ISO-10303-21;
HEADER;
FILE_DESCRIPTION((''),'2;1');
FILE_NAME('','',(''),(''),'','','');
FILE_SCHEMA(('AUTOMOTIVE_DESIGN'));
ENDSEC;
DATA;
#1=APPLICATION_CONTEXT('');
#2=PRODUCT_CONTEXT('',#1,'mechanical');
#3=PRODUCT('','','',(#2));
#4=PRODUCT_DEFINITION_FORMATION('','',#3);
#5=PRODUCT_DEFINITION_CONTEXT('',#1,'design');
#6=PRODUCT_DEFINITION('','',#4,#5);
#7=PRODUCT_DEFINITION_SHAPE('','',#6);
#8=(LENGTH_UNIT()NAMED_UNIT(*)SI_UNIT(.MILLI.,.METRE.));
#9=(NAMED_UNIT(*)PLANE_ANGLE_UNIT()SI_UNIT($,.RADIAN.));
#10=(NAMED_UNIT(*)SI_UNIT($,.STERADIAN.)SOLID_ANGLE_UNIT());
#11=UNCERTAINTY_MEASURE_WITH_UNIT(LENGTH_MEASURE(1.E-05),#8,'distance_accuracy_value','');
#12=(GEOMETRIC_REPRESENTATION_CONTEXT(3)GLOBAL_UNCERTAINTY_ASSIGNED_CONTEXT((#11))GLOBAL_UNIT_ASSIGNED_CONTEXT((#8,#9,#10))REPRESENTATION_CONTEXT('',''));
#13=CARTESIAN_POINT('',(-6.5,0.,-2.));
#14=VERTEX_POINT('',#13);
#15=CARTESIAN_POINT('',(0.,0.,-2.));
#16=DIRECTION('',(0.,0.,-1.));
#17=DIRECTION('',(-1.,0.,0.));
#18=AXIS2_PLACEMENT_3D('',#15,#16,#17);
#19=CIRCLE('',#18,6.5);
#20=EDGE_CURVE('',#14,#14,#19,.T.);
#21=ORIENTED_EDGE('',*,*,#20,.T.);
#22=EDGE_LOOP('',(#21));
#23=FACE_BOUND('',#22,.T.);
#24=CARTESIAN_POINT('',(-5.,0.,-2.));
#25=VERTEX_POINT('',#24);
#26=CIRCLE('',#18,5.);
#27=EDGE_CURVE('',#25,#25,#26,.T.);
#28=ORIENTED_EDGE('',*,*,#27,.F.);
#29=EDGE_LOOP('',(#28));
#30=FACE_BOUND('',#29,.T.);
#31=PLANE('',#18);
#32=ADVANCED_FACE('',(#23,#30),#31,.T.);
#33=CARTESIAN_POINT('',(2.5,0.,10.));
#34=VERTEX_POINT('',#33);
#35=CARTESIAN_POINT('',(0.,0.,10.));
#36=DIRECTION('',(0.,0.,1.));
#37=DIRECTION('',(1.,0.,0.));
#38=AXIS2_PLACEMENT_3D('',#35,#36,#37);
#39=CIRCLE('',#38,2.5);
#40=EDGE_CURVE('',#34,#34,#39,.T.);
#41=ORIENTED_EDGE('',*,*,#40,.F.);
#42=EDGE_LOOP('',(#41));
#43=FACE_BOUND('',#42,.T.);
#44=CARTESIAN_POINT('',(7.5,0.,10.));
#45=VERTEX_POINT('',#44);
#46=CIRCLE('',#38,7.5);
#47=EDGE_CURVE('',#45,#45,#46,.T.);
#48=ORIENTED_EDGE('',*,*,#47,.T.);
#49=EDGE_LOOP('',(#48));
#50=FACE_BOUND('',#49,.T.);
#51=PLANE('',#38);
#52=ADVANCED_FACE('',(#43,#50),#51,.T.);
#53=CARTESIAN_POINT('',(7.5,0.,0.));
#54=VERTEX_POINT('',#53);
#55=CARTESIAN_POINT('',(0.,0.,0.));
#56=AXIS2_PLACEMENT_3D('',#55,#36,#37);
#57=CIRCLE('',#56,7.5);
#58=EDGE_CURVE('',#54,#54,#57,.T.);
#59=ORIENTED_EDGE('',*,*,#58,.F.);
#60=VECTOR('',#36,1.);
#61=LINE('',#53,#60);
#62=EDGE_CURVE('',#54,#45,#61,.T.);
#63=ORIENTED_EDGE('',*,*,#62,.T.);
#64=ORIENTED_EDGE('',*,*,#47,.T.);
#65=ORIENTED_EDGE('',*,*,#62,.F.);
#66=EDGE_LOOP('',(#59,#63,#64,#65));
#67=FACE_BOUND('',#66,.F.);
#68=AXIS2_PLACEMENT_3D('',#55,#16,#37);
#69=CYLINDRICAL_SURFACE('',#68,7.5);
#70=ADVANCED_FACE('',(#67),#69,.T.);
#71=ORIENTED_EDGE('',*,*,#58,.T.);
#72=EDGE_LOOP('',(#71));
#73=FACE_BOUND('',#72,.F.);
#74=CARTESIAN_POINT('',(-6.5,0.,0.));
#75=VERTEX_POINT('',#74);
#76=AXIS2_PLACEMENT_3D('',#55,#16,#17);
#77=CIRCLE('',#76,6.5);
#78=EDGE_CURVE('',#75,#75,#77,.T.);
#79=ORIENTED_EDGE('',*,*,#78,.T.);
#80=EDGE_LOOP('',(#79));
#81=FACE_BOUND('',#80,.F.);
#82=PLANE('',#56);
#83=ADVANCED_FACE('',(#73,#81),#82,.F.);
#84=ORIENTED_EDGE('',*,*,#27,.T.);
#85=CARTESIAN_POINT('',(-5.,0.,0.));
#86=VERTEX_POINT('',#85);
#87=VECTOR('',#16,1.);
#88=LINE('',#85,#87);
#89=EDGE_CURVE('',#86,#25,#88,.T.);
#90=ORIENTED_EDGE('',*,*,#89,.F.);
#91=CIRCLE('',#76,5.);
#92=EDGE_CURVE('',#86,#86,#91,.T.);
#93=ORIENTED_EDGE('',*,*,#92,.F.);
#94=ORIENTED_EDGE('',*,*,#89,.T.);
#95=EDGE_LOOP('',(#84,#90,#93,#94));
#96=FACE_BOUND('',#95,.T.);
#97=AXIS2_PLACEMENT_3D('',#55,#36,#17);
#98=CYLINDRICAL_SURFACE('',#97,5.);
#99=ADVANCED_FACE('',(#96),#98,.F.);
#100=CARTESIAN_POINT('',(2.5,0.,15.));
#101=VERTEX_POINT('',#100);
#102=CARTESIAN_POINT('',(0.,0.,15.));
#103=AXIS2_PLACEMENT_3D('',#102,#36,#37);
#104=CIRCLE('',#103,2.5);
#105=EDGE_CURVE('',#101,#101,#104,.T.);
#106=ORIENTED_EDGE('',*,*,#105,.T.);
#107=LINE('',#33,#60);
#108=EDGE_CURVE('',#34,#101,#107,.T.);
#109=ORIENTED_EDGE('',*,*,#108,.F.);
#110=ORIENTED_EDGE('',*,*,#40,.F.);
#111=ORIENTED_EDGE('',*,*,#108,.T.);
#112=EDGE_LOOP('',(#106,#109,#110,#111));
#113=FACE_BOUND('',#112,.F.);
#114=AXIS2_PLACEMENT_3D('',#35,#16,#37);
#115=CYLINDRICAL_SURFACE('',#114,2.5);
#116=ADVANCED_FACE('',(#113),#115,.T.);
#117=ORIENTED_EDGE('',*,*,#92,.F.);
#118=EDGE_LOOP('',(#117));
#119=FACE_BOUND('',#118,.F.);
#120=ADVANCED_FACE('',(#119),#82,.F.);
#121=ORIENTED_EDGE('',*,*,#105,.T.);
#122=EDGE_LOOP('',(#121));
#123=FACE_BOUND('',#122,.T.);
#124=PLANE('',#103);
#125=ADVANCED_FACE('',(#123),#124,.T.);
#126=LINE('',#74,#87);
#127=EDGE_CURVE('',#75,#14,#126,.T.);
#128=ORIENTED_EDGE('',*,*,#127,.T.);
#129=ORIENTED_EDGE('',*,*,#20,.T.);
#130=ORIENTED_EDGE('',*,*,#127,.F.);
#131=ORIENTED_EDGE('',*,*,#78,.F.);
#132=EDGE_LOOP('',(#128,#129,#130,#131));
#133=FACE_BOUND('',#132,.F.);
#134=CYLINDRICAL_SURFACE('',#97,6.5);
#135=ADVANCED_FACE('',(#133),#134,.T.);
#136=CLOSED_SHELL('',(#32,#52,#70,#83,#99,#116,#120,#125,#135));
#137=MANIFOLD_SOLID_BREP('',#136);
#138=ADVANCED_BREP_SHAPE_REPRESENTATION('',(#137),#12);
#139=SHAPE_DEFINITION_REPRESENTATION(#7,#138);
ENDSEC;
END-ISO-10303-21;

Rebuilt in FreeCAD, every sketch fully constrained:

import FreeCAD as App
import Part
import Sketcher
Q = App.Units.Quantity

doc = App.newDocument("Part")
body = doc.addObject("PartDesign::Body", "Body")

sketch1 = doc.addObject("Sketcher::SketchObject", "Sketch")
body.addObject(sketch1)
sketch1.AttachmentSupport = (doc.XY_Plane, [""])
sketch1.MapMode = "FlatFace"
sketch1.addGeometry(Part.Circle(App.Vector(0, 0, 0), App.Vector(0, 0, 1), 8), False)
sketch1.addConstraint([
    Sketcher.Constraint("Coincident", 0, 3, -1, 1),
    Sketcher.Constraint("Diameter", 0, Q("15 mm")),
])
pad1 = doc.addObject("PartDesign::Pad", "Pad")
body.addObject(pad1)
pad1.Profile = sketch1
pad1.Length = 10

sketch2 = doc.addObject("Sketcher::SketchObject", "Sketch001")
body.addObject(sketch2)
sketch2.AttachmentSupport = (doc.XY_Plane, [""])
sketch2.MapMode = "FlatFace"
sketch2.addGeometry([
    Part.Circle(App.Vector(0, 0, 0), App.Vector(0, 0, 1), 6),
    Part.Circle(App.Vector(0, 0, 0), App.Vector(0, 0, 1), 5),
], False)
sketch2.addConstraint([
    Sketcher.Constraint("Coincident", 0, 3, -1, 1),
    Sketcher.Constraint("Coincident", 1, 3, -1, 1),
    Sketcher.Constraint("Diameter", 0, Q("13 mm")),
    Sketcher.Constraint("Diameter", 1, Q("10 mm")),
])
pad2 = doc.addObject("PartDesign::Pad", "Pad001")
body.addObject(pad2)
pad2.Profile = sketch2
pad2.Length = 2
pad2.Reversed = True

sketch3 = doc.addObject("Sketcher::SketchObject", "Sketch002")
body.addObject(sketch3)
sketch3.AttachmentSupport = (doc.XY_Plane, [""])
sketch3.MapMode = "FlatFace"
sketch3.AttachmentOffset = App.Placement(App.Vector(0, 0, 10), App.Rotation())
sketch3.addGeometry(Part.Circle(App.Vector(0, 0, 0), App.Vector(0, 0, 1), 2.5), False)
sketch3.addConstraint([
    Sketcher.Constraint("Coincident", 0, 3, -1, 1),
    Sketcher.Constraint("Diameter", 0, Q("5 mm")),
])
pad3 = doc.addObject("PartDesign::Pad", "Pad002")
body.addObject(pad3)
pad3.Profile = sketch3
pad3.Length = 5

doc.recompute()
